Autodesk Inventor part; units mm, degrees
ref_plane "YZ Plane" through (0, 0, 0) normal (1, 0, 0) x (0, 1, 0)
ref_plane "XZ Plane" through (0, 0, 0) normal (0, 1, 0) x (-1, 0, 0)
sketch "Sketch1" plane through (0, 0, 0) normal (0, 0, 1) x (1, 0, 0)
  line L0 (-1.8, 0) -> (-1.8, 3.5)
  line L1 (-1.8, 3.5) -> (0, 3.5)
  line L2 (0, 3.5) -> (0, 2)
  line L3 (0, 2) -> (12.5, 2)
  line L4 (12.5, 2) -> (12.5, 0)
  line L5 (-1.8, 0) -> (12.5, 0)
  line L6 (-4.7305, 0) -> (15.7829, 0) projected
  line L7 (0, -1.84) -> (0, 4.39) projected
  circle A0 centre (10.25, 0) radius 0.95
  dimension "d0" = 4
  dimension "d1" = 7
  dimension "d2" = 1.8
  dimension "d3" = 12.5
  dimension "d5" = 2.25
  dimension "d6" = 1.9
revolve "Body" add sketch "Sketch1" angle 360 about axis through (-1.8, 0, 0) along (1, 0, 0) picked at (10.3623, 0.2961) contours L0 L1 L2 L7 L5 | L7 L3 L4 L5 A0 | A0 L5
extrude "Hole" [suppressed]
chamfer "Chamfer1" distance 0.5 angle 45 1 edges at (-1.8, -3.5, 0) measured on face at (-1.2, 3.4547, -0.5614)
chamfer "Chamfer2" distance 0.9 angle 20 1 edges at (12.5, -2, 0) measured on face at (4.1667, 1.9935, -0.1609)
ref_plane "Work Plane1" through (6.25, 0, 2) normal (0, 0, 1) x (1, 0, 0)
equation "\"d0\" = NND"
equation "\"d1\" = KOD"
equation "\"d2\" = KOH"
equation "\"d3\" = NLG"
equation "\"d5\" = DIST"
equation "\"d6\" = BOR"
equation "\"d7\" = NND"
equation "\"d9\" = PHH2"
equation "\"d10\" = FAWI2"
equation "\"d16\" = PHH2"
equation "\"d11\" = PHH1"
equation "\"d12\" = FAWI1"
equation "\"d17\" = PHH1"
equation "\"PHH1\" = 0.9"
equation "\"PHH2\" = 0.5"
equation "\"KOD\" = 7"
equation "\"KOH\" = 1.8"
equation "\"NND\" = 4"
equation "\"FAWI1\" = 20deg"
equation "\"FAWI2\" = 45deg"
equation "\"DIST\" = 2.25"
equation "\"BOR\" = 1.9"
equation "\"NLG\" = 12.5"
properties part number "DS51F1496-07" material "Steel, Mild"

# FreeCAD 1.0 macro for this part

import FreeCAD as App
import Part
import Sketcher
Q = App.Units.Quantity


def edges_at(feature, points):
    """Names of the edges that pass closest to the given points."""
    edges = feature.Shape.Edges
    near = lambda p: min(range(len(edges)), key=lambda i: edges[i].distToShape(Part.Vertex(*p))[0])
    return sorted({f"Edge{near(p) + 1}" for p in points})

doc = App.newDocument("Part")
params = doc.addObject("Spreadsheet::Sheet", "Params")
for row, (alias, value) in enumerate([
    ("sketch1_width", "12.5 mm"),
    ("sketch1_width2", "1.8 mm"),
    ("sketch1_height", "2 mm"),
    ("sketch1_height2", "3.5 mm"),
    ("revolution_angle", "360 deg"),
    ("chamfer_size", "0.5 mm"),
    ("chamfer2_size", "0.9 mm"),
], start=1):
    params.set(f"A{row}", alias)
    params.set(f"B{row}", "=" + value)
    params.setAlias(f"B{row}", alias)

body = doc.addObject("PartDesign::Body", "Body")

sketch1 = body.newObject("Sketcher::SketchObject", "Sketch")
sketch1.AttachmentSupport = (doc.getObject("XY_Plane"), [""])
sketch1.MapMode = "FlatFace"
sketch1.addGeometry([
    Part.LineSegment(App.Vector(-1.8, 3.5, 0), App.Vector(-1.8, 0, 0)),
    Part.LineSegment(App.Vector(-1.8, 0, 0), App.Vector(12.5, 0, 0)),
    Part.LineSegment(App.Vector(12.5, 0, 0), App.Vector(12.5, 2, 0)),
    Part.LineSegment(App.Vector(12.5, 2, 0), App.Vector(0, 2, 0)),
    Part.LineSegment(App.Vector(0, 2, 0), App.Vector(0, 3.5, 0)),
    Part.LineSegment(App.Vector(0, 3.5, 0), App.Vector(-1.8, 3.5, 0)),
], False)
sketch1.addConstraint([
    Sketcher.Constraint("Coincident", 0, 2, 1, 1),
    Sketcher.Constraint("Coincident", 1, 2, 2, 1),
    Sketcher.Constraint("Coincident", 2, 2, 3, 1),
    Sketcher.Constraint("Coincident", 3, 2, 4, 1),
    Sketcher.Constraint("Coincident", 4, 2, 5, 1),
    Sketcher.Constraint("Coincident", 5, 2, 0, 1),
    Sketcher.Constraint("Vertical", 0),
    Sketcher.Constraint("Horizontal", 1),
    Sketcher.Constraint("Vertical", 2),
    Sketcher.Constraint("Horizontal", 3),
    Sketcher.Constraint("Vertical", 4),
    Sketcher.Constraint("Horizontal", 5),
    Sketcher.Constraint("PointOnObject", 0, 2, -1),
    Sketcher.Constraint("PointOnObject", 3, 2, -2),
    Sketcher.Constraint("DistanceX", 3, 2, 3, 1, Q("12.5 mm")),
    Sketcher.Constraint("DistanceX", 5, 2, 5, 1, Q("1.8 mm")),
    Sketcher.Constraint("DistanceY", 2, 1, 2, 2, Q("2 mm")),
    Sketcher.Constraint("DistanceY", 0, 2, 0, 1, Q("3.5 mm")),
])
sketch1.setExpression("Constraints[14]", "Params.sketch1_width")
sketch1.setExpression("Constraints[15]", "Params.sketch1_width2")
sketch1.setExpression("Constraints[16]", "Params.sketch1_height")
sketch1.setExpression("Constraints[17]", "Params.sketch1_height2")
revolution = body.newObject("PartDesign::Revolution", "Revolution")
revolution.Profile = sketch1
revolution.ReferenceAxis = (sketch1, ["H_Axis"])
revolution.setExpression("Angle", "Params.revolution_angle")
doc.recompute()

chamfer = body.newObject("PartDesign::Chamfer", "Chamfer")
chamfer.Base = (revolution, edges_at(revolution, [(-1.8, -3.5, 0)]))
chamfer.setExpression("Size", "Params.chamfer_size")
doc.recompute()

chamfer2 = body.newObject("PartDesign::Chamfer", "Chamfer001")
chamfer2.Base = (chamfer, edges_at(chamfer, [(12.5, -2, 0)]))
chamfer2.ChamferType = "Distance and Angle"
chamfer2.setExpression("Size", "Params.chamfer2_size")
chamfer2.Angle = 20

doc.recompute()
